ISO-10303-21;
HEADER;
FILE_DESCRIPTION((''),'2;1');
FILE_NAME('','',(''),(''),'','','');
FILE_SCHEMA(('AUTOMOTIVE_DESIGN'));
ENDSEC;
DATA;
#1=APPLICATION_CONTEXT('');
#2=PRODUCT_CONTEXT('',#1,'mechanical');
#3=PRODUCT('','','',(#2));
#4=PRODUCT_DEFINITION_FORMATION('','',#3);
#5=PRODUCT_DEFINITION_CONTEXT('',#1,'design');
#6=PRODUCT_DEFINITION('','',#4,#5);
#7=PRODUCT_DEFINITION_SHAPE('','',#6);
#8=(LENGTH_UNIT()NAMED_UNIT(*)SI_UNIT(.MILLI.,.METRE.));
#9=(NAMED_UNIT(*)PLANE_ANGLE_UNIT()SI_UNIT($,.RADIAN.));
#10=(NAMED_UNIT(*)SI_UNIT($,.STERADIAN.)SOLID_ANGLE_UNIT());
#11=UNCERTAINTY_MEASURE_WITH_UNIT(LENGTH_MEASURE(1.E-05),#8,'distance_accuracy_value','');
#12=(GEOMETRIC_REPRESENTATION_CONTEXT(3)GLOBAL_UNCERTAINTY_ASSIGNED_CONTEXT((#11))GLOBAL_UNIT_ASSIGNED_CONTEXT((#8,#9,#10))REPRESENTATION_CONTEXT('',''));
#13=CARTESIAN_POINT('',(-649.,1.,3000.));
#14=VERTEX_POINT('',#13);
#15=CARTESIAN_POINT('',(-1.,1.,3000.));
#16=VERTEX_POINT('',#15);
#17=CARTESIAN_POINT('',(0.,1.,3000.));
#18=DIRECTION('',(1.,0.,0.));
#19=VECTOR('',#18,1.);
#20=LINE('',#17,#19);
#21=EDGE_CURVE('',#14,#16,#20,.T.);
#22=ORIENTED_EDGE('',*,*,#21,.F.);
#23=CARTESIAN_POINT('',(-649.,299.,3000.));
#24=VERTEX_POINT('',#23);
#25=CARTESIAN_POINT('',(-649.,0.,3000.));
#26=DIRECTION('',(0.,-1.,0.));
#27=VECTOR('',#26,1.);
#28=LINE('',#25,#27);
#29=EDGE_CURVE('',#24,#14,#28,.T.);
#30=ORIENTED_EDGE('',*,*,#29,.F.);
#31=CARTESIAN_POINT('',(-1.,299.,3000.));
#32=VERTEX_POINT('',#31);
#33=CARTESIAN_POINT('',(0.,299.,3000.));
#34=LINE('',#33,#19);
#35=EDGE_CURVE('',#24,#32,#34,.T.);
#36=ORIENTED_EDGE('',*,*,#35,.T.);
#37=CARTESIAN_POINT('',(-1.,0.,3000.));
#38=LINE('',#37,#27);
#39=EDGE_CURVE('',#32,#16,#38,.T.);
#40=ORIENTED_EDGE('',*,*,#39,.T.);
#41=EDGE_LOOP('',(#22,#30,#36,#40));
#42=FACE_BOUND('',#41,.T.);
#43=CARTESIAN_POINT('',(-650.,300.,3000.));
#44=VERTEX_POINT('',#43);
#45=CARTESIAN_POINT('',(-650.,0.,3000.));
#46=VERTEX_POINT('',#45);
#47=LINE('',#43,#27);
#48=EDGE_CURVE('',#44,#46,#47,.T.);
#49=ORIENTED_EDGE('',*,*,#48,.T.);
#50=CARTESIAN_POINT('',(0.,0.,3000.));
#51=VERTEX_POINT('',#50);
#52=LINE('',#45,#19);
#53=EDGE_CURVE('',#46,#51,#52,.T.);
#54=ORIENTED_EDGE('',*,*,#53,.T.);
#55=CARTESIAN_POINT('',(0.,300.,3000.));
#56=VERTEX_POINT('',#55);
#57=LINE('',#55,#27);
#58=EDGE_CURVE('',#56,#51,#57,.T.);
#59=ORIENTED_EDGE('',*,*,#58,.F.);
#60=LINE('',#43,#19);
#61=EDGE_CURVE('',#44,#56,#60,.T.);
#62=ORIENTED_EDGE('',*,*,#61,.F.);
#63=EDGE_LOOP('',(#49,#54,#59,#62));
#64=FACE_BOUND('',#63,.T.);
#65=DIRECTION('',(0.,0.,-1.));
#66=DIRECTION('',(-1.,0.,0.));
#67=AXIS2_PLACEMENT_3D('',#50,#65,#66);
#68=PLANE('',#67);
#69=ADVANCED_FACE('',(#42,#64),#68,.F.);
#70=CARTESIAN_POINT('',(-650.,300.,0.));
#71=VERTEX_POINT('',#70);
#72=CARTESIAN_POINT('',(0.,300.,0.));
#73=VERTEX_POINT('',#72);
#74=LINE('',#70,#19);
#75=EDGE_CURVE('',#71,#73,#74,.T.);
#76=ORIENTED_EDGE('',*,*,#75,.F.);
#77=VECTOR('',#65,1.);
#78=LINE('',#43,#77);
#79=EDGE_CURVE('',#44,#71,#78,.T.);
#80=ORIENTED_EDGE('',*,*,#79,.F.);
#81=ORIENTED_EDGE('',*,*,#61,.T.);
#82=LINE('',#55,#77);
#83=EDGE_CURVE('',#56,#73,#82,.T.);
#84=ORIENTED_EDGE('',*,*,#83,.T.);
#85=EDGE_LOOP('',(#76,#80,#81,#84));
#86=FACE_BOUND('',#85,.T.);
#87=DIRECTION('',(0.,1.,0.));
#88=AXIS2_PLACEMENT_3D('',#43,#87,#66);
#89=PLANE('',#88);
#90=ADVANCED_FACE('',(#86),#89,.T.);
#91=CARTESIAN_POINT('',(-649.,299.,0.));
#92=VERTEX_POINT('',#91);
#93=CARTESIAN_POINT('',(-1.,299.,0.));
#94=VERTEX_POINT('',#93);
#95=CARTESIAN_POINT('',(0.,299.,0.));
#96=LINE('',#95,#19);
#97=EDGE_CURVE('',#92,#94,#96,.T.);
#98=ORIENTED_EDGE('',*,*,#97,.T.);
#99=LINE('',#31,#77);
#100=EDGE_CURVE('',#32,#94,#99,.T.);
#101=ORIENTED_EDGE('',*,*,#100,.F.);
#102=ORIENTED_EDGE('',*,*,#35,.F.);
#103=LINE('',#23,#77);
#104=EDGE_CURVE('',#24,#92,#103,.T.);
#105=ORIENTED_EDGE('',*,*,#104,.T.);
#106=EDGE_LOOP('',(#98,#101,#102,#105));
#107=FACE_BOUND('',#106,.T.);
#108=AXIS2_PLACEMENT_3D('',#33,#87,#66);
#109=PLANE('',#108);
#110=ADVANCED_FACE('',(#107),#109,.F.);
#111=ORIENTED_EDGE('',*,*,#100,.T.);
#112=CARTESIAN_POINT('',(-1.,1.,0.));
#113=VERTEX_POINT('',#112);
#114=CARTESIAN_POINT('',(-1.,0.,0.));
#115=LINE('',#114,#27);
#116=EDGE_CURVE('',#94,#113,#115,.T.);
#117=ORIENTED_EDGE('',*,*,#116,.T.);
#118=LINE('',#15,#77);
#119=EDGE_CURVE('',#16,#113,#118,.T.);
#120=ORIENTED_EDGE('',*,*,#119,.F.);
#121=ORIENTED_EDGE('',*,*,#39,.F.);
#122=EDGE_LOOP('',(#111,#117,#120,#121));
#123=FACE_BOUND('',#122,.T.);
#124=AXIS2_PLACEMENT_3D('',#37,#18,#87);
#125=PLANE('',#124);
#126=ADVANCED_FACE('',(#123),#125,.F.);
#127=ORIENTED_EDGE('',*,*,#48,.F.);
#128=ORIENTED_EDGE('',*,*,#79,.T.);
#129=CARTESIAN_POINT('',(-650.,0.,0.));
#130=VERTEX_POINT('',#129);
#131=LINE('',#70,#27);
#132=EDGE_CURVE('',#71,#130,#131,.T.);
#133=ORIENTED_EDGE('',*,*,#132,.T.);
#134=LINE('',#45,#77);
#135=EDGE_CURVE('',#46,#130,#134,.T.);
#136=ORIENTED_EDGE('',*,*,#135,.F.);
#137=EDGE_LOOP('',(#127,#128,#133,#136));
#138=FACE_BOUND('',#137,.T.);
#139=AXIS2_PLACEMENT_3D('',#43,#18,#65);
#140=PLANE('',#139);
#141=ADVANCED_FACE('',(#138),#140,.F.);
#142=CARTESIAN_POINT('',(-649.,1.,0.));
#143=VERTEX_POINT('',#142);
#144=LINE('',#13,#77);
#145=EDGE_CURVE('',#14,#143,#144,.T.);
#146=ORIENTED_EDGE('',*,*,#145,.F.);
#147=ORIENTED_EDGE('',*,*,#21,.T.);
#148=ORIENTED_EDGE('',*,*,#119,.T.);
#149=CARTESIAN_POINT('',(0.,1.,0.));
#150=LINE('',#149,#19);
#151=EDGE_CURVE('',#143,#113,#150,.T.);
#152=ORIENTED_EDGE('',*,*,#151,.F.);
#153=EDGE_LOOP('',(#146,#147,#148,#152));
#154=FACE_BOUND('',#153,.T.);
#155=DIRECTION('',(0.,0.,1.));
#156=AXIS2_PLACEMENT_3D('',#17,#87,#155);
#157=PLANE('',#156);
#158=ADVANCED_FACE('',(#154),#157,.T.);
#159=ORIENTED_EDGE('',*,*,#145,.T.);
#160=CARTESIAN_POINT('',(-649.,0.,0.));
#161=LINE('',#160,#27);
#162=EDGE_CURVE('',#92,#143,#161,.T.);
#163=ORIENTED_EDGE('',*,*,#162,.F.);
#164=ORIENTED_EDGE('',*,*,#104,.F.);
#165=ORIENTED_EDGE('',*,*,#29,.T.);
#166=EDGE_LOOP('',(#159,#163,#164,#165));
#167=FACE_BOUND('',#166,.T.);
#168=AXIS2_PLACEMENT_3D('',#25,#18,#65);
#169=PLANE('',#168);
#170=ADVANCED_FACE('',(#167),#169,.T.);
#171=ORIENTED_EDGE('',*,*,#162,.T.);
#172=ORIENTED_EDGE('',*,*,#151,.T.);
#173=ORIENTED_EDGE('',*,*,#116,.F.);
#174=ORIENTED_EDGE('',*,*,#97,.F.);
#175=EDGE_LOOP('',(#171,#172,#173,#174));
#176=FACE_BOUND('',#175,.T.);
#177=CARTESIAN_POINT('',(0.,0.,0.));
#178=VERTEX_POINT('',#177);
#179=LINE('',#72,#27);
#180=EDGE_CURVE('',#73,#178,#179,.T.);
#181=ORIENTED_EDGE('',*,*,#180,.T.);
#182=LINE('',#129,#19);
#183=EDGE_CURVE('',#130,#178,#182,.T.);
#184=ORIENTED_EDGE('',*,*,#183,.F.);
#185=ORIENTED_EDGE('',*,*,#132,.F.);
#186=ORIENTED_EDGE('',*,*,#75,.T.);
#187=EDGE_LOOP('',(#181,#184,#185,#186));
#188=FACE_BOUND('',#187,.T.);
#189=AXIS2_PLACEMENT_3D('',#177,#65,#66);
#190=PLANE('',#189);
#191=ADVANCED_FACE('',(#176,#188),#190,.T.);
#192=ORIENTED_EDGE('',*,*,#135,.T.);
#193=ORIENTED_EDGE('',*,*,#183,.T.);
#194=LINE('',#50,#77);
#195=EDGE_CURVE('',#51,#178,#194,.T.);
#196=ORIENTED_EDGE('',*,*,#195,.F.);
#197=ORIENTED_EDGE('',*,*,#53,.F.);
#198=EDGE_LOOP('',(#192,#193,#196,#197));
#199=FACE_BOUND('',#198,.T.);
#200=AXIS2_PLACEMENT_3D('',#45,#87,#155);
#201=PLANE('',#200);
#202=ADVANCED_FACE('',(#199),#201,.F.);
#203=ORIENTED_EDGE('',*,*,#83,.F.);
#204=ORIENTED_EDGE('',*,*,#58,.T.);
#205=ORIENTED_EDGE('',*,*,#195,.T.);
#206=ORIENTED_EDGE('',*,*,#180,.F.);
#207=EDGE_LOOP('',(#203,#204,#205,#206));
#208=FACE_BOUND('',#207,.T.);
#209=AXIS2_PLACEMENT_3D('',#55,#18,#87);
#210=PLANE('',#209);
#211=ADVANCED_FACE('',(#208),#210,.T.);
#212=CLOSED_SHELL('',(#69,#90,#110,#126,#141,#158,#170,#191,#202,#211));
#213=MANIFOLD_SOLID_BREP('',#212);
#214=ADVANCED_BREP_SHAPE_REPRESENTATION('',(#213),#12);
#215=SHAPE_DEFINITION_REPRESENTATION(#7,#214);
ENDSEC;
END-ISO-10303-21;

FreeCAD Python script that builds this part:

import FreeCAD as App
import Part
import Sketcher
from FreeCAD import Vector
Q = App.Units.Quantity


def add_polygon(sketch, points):
    """Adds a closed chain of lines whose ends are joined by coincident constraints."""
    first, n = sketch.GeometryCount, len(points)
    for a, b in zip(points, points[1:] + points[:1]):
        sketch.addGeometry(Part.LineSegment(App.Vector(*a, 0), App.Vector(*b, 0)), False)
    for i in range(n):
        sketch.addConstraint(Sketcher.Constraint("Coincident", first + i, 2, first + (i + 1) % n, 1))

doc = App.newDocument("Part")
params = doc.addObject("Spreadsheet::Sheet", "Params")
for row, (alias, value) in enumerate([
    ("sketch1_width", "650 mm"),
    ("sketch1_width2", "648 mm"),
    ("sketch1_height", "300 mm"),
    ("sketch1_height2", "298 mm"),
    ("pad1_length", "3000 mm"),
], start=1):
    params.set(f"A{row}", alias)
    params.set(f"B{row}", "=" + value)
    params.setAlias(f"B{row}", alias)

body = doc.addObject("PartDesign::Body", "Body")

# Sketch on XY plane
sketch1 = doc.addObject("Sketcher::SketchObject", "Sketch")
body.addObject(sketch1)
sketch1.AttachmentSupport = (doc.XY_Plane, [""])
sketch1.MapMode = "FlatFace"
add_polygon(sketch1, [(-650, 300), (-650, 0), (0, 0), (0, 300)])  # lines 0-3
add_polygon(sketch1, [(-1, 1), (-649, 1), (-649, 299), (-1, 299)])  # lines 4-7
sketch1.addConstraint(Sketcher.Constraint("Vertical", 0))
sketch1.addConstraint(Sketcher.Constraint("Horizontal", 1))
sketch1.addConstraint(Sketcher.Constraint("Vertical", 2))
sketch1.addConstraint(Sketcher.Constraint("Horizontal", 3))
sketch1.addConstraint(Sketcher.Constraint("Horizontal", 4))
sketch1.addConstraint(Sketcher.Constraint("Vertical", 5))
sketch1.addConstraint(Sketcher.Constraint("Horizontal", 6))
sketch1.addConstraint(Sketcher.Constraint("Vertical", 7))
sketch1.addConstraint(Sketcher.Constraint("Coincident", 1, 2, -1, 1))
sketch1.addConstraint(Sketcher.Constraint("DistanceX", 1, 1, 1, 2, Q("650 mm")))
sketch1.addConstraint(Sketcher.Constraint("DistanceX", 4, 2, 4, 1, Q("648 mm")))
sketch1.addConstraint(Sketcher.Constraint("DistanceY", 0, 2, 0, 1, Q("300 mm")))
sketch1.addConstraint(Sketcher.Constraint("DistanceY", 5, 1, 5, 2, Q("298 mm")))
sketch1.addConstraint(Sketcher.Constraint("DistanceX", 4, 2, -1, 1, Q("649 mm")))
sketch1.addConstraint(Sketcher.Constraint("DistanceY", -1, 1, 4, 2, Q("1 mm")))
sketch1.setExpression("Constraints[17]", "Params.sketch1_width")
sketch1.setExpression("Constraints[18]", "Params.sketch1_width2")
sketch1.setExpression("Constraints[19]", "Params.sketch1_height")
sketch1.setExpression("Constraints[20]", "Params.sketch1_height2")
pad1 = doc.addObject("PartDesign::Pad", "Pad")
body.addObject(pad1)
pad1.Profile = sketch1
pad1.setExpression("Length", "Params.pad1_length")

doc.recompute()
